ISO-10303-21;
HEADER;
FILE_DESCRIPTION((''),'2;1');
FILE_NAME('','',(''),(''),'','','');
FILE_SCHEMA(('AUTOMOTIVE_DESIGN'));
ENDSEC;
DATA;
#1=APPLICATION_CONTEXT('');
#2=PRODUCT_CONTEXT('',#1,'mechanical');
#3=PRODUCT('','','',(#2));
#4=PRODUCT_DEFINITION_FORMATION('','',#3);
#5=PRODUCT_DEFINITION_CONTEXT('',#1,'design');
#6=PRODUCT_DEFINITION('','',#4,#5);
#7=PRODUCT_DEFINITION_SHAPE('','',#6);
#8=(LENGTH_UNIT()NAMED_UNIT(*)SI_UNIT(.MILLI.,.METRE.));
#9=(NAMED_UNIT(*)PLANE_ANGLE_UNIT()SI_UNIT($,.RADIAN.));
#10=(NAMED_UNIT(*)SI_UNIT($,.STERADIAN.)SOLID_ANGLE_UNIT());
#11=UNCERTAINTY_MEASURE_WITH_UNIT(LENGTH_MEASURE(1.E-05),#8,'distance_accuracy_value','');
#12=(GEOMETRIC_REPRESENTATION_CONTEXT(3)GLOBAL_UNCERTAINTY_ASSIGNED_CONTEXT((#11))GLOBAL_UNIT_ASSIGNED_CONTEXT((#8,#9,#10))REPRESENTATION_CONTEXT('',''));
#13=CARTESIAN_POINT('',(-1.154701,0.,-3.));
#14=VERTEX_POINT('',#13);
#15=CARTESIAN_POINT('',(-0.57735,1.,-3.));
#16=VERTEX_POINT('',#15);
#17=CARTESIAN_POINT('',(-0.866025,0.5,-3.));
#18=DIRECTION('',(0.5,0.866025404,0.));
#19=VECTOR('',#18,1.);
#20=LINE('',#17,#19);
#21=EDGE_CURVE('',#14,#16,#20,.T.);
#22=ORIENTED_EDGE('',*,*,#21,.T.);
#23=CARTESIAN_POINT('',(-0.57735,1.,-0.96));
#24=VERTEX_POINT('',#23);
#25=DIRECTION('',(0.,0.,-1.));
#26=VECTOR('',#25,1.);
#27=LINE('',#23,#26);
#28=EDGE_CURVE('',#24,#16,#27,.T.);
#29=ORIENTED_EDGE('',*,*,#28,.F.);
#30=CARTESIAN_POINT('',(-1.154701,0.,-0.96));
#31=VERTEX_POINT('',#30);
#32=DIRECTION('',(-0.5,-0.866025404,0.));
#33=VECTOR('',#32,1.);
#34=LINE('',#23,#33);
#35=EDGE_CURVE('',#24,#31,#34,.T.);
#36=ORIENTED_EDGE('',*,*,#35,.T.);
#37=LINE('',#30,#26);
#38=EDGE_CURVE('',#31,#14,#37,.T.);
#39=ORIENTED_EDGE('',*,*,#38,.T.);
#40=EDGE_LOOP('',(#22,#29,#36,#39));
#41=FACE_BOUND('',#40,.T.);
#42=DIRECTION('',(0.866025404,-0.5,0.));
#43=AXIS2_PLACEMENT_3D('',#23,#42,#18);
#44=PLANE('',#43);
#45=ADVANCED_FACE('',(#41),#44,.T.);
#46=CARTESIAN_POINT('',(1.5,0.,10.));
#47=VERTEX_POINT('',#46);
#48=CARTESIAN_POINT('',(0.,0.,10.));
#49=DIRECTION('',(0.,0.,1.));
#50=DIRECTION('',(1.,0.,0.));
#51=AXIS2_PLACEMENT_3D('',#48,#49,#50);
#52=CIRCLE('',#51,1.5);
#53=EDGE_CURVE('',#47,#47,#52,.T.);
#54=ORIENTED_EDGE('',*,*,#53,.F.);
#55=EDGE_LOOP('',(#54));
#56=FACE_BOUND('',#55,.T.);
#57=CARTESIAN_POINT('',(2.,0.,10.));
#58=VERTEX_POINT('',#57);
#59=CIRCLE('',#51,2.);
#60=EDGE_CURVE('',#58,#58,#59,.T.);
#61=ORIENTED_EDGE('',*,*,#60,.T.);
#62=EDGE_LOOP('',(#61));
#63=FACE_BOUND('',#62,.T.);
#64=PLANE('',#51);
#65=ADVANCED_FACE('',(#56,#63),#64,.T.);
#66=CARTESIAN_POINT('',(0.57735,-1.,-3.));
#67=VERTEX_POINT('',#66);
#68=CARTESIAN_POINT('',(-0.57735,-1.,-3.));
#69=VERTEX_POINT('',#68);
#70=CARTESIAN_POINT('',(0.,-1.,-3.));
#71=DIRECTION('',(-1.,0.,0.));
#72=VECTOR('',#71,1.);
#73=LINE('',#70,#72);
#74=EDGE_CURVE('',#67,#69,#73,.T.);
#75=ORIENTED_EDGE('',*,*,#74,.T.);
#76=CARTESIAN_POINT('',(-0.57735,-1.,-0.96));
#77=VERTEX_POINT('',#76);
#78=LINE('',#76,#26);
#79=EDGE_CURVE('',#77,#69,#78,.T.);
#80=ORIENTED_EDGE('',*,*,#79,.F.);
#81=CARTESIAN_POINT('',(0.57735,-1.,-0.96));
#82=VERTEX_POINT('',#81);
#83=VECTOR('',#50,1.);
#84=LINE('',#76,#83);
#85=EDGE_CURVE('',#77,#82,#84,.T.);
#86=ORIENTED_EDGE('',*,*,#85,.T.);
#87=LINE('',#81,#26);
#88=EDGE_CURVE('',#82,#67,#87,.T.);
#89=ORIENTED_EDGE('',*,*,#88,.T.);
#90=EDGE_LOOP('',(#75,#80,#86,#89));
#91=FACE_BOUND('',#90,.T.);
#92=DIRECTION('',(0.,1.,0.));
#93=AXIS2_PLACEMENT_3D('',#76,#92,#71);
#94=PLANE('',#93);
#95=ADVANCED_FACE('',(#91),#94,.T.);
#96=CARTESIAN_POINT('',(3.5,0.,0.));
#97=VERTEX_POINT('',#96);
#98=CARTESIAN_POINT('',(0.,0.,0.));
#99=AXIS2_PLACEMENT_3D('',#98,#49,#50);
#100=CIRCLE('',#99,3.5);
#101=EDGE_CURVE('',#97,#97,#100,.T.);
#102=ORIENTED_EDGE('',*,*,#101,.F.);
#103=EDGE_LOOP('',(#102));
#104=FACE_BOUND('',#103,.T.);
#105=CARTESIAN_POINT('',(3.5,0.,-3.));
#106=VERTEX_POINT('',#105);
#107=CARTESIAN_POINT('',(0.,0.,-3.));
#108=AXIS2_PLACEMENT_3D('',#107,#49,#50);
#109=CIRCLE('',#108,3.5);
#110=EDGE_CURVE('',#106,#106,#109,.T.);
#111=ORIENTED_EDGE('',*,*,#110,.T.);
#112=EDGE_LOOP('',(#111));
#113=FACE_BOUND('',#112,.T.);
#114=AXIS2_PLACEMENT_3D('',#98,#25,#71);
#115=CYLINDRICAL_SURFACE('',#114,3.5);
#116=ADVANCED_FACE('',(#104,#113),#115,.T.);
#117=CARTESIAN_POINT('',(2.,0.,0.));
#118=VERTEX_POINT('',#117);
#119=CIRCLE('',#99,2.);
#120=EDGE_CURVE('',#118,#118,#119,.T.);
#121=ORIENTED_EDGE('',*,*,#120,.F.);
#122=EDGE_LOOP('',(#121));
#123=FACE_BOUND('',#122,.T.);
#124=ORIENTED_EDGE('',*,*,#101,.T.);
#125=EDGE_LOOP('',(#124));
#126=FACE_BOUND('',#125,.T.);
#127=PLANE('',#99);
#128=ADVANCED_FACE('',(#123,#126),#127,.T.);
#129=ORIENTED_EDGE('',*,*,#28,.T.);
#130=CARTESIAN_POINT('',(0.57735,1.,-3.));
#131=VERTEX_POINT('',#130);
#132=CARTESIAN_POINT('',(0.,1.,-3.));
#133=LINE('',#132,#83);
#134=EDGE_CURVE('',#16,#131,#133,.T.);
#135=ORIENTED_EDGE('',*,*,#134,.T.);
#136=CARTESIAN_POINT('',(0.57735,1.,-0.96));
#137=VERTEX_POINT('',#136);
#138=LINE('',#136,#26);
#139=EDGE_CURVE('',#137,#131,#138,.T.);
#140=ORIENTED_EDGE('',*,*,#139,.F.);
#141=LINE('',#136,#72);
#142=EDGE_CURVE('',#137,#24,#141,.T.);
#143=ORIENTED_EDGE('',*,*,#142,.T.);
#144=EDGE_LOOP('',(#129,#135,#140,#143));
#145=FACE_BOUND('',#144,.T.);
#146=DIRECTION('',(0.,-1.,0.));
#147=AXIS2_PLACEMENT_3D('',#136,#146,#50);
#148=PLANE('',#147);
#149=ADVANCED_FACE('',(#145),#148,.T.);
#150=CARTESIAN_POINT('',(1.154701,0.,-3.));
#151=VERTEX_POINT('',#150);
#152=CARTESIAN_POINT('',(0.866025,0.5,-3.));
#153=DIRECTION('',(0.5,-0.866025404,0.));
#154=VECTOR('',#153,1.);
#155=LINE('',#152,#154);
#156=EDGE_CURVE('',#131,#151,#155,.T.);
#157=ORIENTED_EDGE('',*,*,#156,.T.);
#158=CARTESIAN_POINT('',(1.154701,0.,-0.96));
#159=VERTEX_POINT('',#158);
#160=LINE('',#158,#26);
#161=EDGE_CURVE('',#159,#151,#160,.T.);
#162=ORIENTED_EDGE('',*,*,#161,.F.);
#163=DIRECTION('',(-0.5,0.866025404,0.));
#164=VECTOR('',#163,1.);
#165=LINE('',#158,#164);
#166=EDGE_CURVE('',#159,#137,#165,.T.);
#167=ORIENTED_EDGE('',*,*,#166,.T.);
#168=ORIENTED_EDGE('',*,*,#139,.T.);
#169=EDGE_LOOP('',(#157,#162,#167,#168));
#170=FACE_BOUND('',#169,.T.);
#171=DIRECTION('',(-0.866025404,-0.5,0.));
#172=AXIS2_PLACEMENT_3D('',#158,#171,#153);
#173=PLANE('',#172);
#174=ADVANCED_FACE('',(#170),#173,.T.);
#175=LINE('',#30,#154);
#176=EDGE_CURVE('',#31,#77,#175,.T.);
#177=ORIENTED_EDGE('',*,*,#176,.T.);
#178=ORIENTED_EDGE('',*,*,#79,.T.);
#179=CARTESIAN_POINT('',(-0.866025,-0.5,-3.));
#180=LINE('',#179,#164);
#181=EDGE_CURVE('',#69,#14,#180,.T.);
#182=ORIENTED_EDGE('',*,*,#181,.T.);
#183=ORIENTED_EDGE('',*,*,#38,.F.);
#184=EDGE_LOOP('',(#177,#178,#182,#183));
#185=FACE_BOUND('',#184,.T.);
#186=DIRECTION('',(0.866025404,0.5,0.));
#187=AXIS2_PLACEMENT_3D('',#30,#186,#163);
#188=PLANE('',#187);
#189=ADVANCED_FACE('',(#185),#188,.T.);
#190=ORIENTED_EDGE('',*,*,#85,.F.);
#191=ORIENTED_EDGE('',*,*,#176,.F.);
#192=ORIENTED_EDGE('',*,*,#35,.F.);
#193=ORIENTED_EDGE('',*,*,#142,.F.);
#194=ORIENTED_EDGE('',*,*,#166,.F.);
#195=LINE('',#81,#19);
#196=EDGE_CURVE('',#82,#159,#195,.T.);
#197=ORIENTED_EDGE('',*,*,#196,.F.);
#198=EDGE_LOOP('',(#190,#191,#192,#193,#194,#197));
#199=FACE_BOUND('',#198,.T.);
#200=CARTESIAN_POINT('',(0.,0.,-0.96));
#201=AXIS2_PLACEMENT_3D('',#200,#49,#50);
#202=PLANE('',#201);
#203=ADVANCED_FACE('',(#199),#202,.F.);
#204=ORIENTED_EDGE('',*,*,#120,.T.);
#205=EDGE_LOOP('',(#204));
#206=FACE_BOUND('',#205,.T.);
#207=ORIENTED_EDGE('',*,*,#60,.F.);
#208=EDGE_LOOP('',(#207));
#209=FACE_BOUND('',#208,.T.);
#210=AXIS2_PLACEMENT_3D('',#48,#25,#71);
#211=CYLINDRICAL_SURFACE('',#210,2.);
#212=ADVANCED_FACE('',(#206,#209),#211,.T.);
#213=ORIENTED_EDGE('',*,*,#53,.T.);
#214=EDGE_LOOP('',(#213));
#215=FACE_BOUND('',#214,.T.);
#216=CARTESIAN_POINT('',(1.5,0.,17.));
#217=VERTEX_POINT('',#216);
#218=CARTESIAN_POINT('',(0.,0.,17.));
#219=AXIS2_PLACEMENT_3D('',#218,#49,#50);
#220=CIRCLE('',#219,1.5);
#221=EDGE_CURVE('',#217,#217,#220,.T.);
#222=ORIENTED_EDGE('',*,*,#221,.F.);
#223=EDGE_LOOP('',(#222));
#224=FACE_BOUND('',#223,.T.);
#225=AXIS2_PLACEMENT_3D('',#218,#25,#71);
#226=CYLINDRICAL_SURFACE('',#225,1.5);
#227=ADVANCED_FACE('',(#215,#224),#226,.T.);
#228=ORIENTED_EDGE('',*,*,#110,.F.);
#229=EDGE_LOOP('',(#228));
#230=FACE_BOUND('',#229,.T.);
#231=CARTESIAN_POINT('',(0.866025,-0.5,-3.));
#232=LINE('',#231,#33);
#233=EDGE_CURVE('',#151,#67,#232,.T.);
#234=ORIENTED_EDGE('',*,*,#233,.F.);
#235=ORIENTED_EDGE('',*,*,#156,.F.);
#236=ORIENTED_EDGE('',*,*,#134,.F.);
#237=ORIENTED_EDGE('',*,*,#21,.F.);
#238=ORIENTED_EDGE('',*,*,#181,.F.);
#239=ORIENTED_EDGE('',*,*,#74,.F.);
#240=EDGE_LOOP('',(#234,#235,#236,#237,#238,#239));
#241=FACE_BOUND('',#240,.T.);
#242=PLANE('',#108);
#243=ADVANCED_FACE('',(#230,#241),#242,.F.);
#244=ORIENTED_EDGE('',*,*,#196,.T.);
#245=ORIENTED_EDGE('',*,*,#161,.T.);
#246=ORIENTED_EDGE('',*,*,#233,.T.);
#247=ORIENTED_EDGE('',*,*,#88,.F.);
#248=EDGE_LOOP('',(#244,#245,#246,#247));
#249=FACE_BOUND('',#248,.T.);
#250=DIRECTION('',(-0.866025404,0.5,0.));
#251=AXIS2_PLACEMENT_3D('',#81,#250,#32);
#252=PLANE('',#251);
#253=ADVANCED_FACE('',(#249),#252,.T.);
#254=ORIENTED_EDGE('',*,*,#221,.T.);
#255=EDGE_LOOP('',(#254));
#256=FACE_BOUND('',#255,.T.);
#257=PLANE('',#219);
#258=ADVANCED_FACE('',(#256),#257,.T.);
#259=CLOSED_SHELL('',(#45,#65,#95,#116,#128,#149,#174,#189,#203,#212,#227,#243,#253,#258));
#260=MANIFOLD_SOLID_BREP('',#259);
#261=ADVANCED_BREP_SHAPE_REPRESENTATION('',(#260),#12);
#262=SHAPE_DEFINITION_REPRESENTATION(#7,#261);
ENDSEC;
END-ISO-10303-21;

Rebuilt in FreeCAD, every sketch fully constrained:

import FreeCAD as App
import Part
import Sketcher

V = App.Vector
Q = App.Units.Quantity

doc = App.newDocument("Part")
body = doc.addObject("PartDesign::Body", "Body")

# Sketch on XY plane
sketch1 = body.newObject("Sketcher::SketchObject", "Sketch")
sketch1.AttachmentSupport = (doc.getObject("XY_Plane"), [""])
sketch1.MapMode = "FlatFace"
sketch1.AttachmentOffset = App.Placement(V(0, 0, -3), App.Rotation())
sketch1.addGeometry(Part.Circle(V(0, 0, 0), V(0, 0, 1), 3.5), False)
sketch1.addConstraint(Sketcher.Constraint("Coincident", 0, 3, -1, 1))
sketch1.addConstraint(Sketcher.Constraint("Diameter", 0, Q("7 mm")))
pad1 = body.newObject("PartDesign::Pad", "Pad")
pad1.Profile = sketch1
pad1.Length = 3

# Sketch on XY plane
sketch2 = body.newObject("Sketcher::SketchObject", "Sketch001")
sketch2.AttachmentSupport = (doc.getObject("XY_Plane"), [""])
sketch2.MapMode = "FlatFace"
sketch2.addGeometry(Part.Circle(V(0, 0, 0), V(0, 0, 1), 2), False)
sketch2.addConstraint(Sketcher.Constraint("Coincident", 0, 3, -1, 1))
sketch2.addConstraint(Sketcher.Constraint("Diameter", 0, Q("4 mm")))
pad2 = body.newObject("PartDesign::Pad", "Pad001")
pad2.Profile = sketch2
pad2.Length = 10

# Sketch on XY plane
sketch3 = body.newObject("Sketcher::SketchObject", "Sketch002")
sketch3.AttachmentSupport = (doc.getObject("XY_Plane"), [""])
sketch3.MapMode = "FlatFace"
sketch3.AttachmentOffset = App.Placement(V(0, 0, 10), App.Rotation())
sketch3.addGeometry(Part.Circle(V(0, 0, 0), V(0, 0, 1), 1.5), False)
sketch3.addConstraint(Sketcher.Constraint("Coincident", 0, 3, -1, 1))
sketch3.addConstraint(Sketcher.Constraint("Diameter", 0, Q("3 mm")))
pad3 = body.newObject("PartDesign::Pad", "Pad002")
pad3.Profile = sketch3
pad3.Length = 7

# Sketch on XY plane
sketch4 = body.newObject("Sketcher::SketchObject", "Sketch003")
sketch4.AttachmentSupport = (doc.getObject("XY_Plane"), [""])
sketch4.MapMode = "FlatFace"
sketch4.AttachmentOffset = App.Placement(V(0, 0, -3.1), App.Rotation())
sketch4.addGeometry(Part.LineSegment(V(1.154701, 0, 0), V(0.57735, 1, 0)), False)
sketch4.addGeometry(Part.LineSegment(V(0.57735, 1, 0), V(-0.57735, 1, 0)), False)
sketch4.addGeometry(Part.LineSegment(V(-0.57735, 1, 0), V(-1.154701, 0, 0)), False)
sketch4.addGeometry(Part.LineSegment(V(-1.154701, 0, 0), V(-0.57735, -1, 0)), False)
sketch4.addGeometry(Part.LineSegment(V(-0.57735, -1, 0), V(0.57735, -1, 0)), False)
sketch4.addGeometry(Part.LineSegment(V(0.57735, -1, 0), V(1.154701, 0, 0)), False)
sketch4.addConstraint(Sketcher.Constraint("Coincident", 0, 2, 1, 1))
sketch4.addConstraint(Sketcher.Constraint("Coincident", 1, 2, 2, 1))
sketch4.addConstraint(Sketcher.Constraint("Coincident", 2, 2, 3, 1))
sketch4.addConstraint(Sketcher.Constraint("Coincident", 3, 2, 4, 1))
sketch4.addConstraint(Sketcher.Constraint("Coincident", 4, 2, 5, 1))
sketch4.addConstraint(Sketcher.Constraint("Coincident", 5, 2, 0, 1))
sketch4.addConstraint(Sketcher.Constraint("Horizontal", 1))
sketch4.addConstraint(Sketcher.Constraint("Horizontal", 4))
sketch4.addConstraint(Sketcher.Constraint("Symmetric", 0, 2, 3, 2, -1, 1))
sketch4.addConstraint(Sketcher.Constraint("Symmetric", 2, 2, 5, 2, -1, 1))
sketch4.addConstraint(Sketcher.Constraint("PointOnObject", 2, 2, -1))
sketch4.addConstraint(Sketcher.Constraint("Parallel", 2, 5))
sketch4.addConstraint(Sketcher.Constraint("Vertical", 1, 2, 3, 2))
sketch4.addConstraint(Sketcher.Constraint("Angle", 0, Q("120 deg")))
sketch4.addConstraint(Sketcher.Constraint("DistanceY", -1, 1, 0, 2, Q("1 mm")))
sketch4.addConstraint(Sketcher.Constraint("DistanceX", 1, 2, 1, 1, Q("1.154701 mm")))
pocket1 = body.newObject("PartDesign::Pocket", "Pocket")
pocket1.Profile = sketch4
pocket1.Length = 2.14
pocket1.Reversed = True

doc.recompute()
